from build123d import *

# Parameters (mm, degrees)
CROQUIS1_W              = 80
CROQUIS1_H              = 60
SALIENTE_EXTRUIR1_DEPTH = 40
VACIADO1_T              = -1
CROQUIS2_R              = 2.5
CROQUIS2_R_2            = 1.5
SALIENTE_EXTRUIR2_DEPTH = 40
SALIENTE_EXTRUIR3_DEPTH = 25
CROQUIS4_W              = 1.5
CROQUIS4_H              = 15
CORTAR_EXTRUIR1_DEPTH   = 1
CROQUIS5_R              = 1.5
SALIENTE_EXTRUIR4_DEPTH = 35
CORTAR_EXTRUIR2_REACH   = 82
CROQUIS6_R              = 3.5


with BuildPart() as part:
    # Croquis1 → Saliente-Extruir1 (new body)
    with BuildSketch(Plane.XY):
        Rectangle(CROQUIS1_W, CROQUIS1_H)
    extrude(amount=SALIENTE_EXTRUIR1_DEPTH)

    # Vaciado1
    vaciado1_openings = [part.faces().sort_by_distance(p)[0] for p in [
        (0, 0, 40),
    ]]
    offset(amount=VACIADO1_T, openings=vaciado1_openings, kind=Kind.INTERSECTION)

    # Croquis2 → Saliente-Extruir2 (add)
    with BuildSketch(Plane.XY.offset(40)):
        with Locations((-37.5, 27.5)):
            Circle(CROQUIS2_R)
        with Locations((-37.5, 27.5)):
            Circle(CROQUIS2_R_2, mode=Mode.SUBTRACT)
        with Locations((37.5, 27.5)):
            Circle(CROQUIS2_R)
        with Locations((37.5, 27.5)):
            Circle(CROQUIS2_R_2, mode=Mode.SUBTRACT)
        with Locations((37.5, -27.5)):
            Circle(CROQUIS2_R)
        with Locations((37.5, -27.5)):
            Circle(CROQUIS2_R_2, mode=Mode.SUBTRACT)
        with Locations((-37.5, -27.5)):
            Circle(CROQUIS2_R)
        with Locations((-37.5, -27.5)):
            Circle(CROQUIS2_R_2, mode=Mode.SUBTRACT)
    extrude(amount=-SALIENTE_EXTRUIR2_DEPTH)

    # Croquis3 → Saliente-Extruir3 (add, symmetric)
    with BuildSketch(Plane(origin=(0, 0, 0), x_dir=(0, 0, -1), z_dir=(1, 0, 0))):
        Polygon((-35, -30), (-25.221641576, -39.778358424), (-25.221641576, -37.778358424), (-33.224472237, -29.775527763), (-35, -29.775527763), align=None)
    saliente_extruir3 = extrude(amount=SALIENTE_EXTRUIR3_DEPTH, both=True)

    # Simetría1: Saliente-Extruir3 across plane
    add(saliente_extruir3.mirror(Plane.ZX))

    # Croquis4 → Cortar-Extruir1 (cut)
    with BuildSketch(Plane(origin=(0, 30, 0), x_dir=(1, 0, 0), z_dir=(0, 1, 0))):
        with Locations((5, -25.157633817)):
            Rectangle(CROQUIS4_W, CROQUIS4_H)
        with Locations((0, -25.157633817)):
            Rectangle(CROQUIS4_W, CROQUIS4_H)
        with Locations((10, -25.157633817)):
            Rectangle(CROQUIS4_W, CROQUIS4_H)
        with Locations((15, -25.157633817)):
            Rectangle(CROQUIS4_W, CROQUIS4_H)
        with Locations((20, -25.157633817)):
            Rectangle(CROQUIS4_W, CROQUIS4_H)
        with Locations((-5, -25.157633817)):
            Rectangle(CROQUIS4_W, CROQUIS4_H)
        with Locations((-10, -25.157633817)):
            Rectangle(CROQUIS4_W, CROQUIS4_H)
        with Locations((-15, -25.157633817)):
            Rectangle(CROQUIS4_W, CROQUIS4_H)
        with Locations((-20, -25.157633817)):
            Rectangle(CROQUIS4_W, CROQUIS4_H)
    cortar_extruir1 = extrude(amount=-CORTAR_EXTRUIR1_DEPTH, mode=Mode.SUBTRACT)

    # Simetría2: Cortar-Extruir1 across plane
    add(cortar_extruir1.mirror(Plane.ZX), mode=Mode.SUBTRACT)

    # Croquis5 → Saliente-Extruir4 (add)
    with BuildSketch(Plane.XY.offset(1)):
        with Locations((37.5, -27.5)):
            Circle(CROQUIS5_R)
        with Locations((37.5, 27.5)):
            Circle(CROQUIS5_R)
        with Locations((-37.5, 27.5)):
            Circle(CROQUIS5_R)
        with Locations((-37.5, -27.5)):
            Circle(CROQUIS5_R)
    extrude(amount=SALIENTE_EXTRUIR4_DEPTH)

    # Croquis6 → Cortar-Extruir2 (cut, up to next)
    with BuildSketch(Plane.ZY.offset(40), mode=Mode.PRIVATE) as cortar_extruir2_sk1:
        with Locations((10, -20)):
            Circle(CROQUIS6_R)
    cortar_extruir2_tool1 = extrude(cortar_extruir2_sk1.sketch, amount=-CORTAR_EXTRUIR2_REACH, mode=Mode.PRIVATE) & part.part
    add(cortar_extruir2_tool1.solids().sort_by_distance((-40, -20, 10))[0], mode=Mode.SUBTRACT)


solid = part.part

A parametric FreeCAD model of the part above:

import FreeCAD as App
import Part
import Sketcher
Q = App.Units.Quantity


def faces_at(feature, points):
    """Names of the faces that lie closest to the given points."""
    faces = feature.Shape.Faces
    near = lambda p: min(range(len(faces)), key=lambda i: faces[i].distToShape(Part.Vertex(*p))[0])
    return sorted({f"Face{near(p) + 1}" for p in points})

doc = App.newDocument("Part")
body = doc.addObject("PartDesign::Body", "Body")

# Sketch on XY plane
sketch1 = body.newObject("Sketcher::SketchObject", "Sketch")
sketch1.AttachmentSupport = (doc.getObject("XY_Plane"), [""])
sketch1.MapMode = "FlatFace"
sketch1.addGeometry([
    Part.LineSegment(App.Vector(-40, 30, 0), App.Vector(-40, -30, 0)),
    Part.LineSegment(App.Vector(-40, -30, 0), App.Vector(40, -30, 0)),
    Part.LineSegment(App.Vector(40, -30, 0), App.Vector(40, 30, 0)),
    Part.LineSegment(App.Vector(40, 30, 0), App.Vector(-40, 30, 0)),
], False)
sketch1.addConstraint([
    Sketcher.Constraint("Coincident", 0, 2, 1, 1),
    Sketcher.Constraint("Coincident", 1, 2, 2, 1),
    Sketcher.Constraint("Coincident", 2, 2, 3, 1),
    Sketcher.Constraint("Coincident", 3, 2, 0, 1),
    Sketcher.Constraint("Vertical", 0),
    Sketcher.Constraint("Horizontal", 1),
    Sketcher.Constraint("Vertical", 2),
    Sketcher.Constraint("Horizontal", 3),
    Sketcher.Constraint("Symmetric", 0, 2, 2, 2, -1, 1),
    Sketcher.Constraint("DistanceX", 1, 1, 1, 2, Q("80 mm")),
    Sketcher.Constraint("DistanceY", 0, 2, 0, 1, Q("60 mm")),
])
pad1 = body.newObject("PartDesign::Pad", "Pad")
pad1.Profile = sketch1
pad1.Length = 40
doc.recompute()

thickness = body.newObject("PartDesign::Thickness", "Thickness")
thickness.Base = (pad1, faces_at(pad1, [(0, 0, 40)]))
thickness.Value = 1
thickness.Reversed = True
thickness.Join = "Intersection"

# Sketch on XY plane
sketch2 = body.newObject("Sketcher::SketchObject", "Sketch001")
sketch2.AttachmentSupport = (doc.getObject("XY_Plane"), [""])
sketch2.MapMode = "FlatFace"
sketch2.AttachmentOffset = App.Placement(App.Vector(0, 0, 40), App.Rotation())
sketch2.addGeometry([
    Part.Circle(App.Vector(-37.5, 27.5, 0), App.Vector(0, 0, 1), 2.5),  # 0
    Part.Circle(App.Vector(-37.5, 27.5, 0), App.Vector(0, 0, 1), 1.5),  # 1
    Part.Circle(App.Vector(37.5, 27.5, 0), App.Vector(0, 0, 1), 2.5),  # 2
    Part.Circle(App.Vector(37.5, 27.5, 0), App.Vector(0, 0, 1), 1.5),  # 3
    Part.Circle(App.Vector(37.5, -27.5, 0), App.Vector(0, 0, 1), 2.5),  # 4
    Part.Circle(App.Vector(37.5, -27.5, 0), App.Vector(0, 0, 1), 1.5),  # 5
    Part.Circle(App.Vector(-37.5, -27.5, 0), App.Vector(0, 0, 1), 2.5),  # 6
    Part.Circle(App.Vector(-37.5, -27.5, 0), App.Vector(0, 0, 1), 1.5),  # 7
], False)
sketch2.addConstraint([
    Sketcher.Constraint("Coincident", 1, 3, 0, 3),
    Sketcher.Constraint("Coincident", 3, 3, 2, 3),
    Sketcher.Constraint("Coincident", 5, 3, 4, 3),
    Sketcher.Constraint("Coincident", 7, 3, 6, 3),
    Sketcher.Constraint("Equal", 0, 2),
    Sketcher.Constraint("Equal", 1, 3),
    Sketcher.Constraint("Equal", 2, 4),
    Sketcher.Constraint("Equal", 3, 5),
    Sketcher.Constraint("Equal", 4, 6),
    Sketcher.Constraint("Equal", 5, 7),
    Sketcher.Constraint("Symmetric", 0, 3, 4, 3, -1, 1),
    Sketcher.Constraint("Symmetric", 2, 3, 6, 3, -1, 1),
    Sketcher.Constraint("Symmetric", 0, 3, 2, 3, -2),
    Sketcher.Constraint("Diameter", 0, Q("5 mm")),
    Sketcher.Constraint("Diameter", 1, Q("3 mm")),
    Sketcher.Constraint("DistanceX", 0, 3, 2, 3, Q("75 mm")),
    Sketcher.Constraint("DistanceY", 4, 3, 2, 3, Q("55 mm")),
])
pad2 = body.newObject("PartDesign::Pad", "Pad001")
pad2.Profile = sketch2
pad2.Length = 40
pad2.Reversed = True

# Sketch on YZ plane
sketch3 = body.newObject("Sketcher::SketchObject", "Sketch002")
sketch3.AttachmentSupport = (doc.getObject("YZ_Plane"), [""])
sketch3.MapMode = "FlatFace"
sketch3.addGeometry([
    Part.LineSegment(App.Vector(-30, 35, 0), App.Vector(-39.778358, 25.221642, 0)),  # 0
    Part.LineSegment(App.Vector(-39.778358, 25.221642, 0), App.Vector(-37.778358, 25.221642, 0)),  # 1
    Part.LineSegment(App.Vector(-37.778358, 25.221642, 0), App.Vector(-29.775528, 33.224472, 0)),  # 2
    Part.LineSegment(App.Vector(-29.775528, 33.224472, 0), App.Vector(-29.775528, 35, 0)),  # 3
    Part.LineSegment(App.Vector(-29.775528, 35, 0), App.Vector(-30, 35, 0)),  # 4
], False)
sketch3.addConstraint([
    Sketcher.Constraint("Coincident", 0, 2, 1, 1),
    Sketcher.Constraint("Coincident", 1, 2, 2, 1),
    Sketcher.Constraint("Coincident", 2, 2, 3, 1),
    Sketcher.Constraint("Coincident", 3, 2, 4, 1),
    Sketcher.Constraint("Coincident", 4, 2, 0, 1),
    Sketcher.Constraint("Horizontal", 1),
    Sketcher.Constraint("Vertical", 3),
    Sketcher.Constraint("Horizontal", 4),
    Sketcher.Constraint("Parallel", 0, 2),
    Sketcher.Constraint("DistanceX", 1, 1, 1, 2, Q("2 mm")),
    Sketcher.Constraint("Angle", 0, Q("-135 deg")),
    Sketcher.Constraint("DistanceY", -1, 1, 3, 2, Q("35 mm")),
    Sketcher.Constraint("DistanceX", 4, 2, -1, 1, Q("30 mm")),
    Sketcher.Constraint("Distance", 2, Q("11.317712 mm")),
    Sketcher.Constraint("DistanceX", 4, 2, 4, 1, Q("0.224472 mm")),
])
pad3 = body.newObject("PartDesign::Pad", "Pad002")
pad3.Profile = sketch3
pad3.Length = 50
pad3.Midplane = True
doc.recompute()

mirrored = body.newObject("PartDesign::Mirrored", "Mirrored")
mirrored.Originals = [pad3]
mirrored.MirrorPlane = (doc.getObject("XZ_Plane"), [""])
body.Tip = mirrored

# Sketch on XZ plane
sketch4 = body.newObject("Sketcher::SketchObject", "Sketch003")
sketch4.AttachmentSupport = (doc.getObject("XZ_Plane"), [""])
sketch4.MapMode = "FlatFace"
sketch4.AttachmentOffset = App.Placement(App.Vector(0, 0, -30), App.Rotation())
sketch4.addGeometry([
    Part.LineSegment(App.Vector(4.25, 17.657634, 0), App.Vector(4.25, 32.657634, 0)),  # 0
    Part.LineSegment(App.Vector(4.25, 32.657634, 0), App.Vector(5.75, 32.657634, 0)),  # 1
    Part.LineSegment(App.Vector(5.75, 32.657634, 0), App.Vector(5.75, 17.657634, 0)),  # 2
    Part.LineSegment(App.Vector(5.75, 17.657634, 0), App.Vector(4.25, 17.657634, 0)),  # 3
    Part.LineSegment(App.Vector(-0.75, 17.657634, 0), App.Vector(-0.75, 32.657634, 0)),  # 4
    Part.LineSegment(App.Vector(-0.75, 32.657634, 0), App.Vector(0.75, 32.657634, 0)),  # 5
    Part.LineSegment(App.Vector(0.75, 32.657634, 0), App.Vector(0.75, 17.657634, 0)),  # 6
    Part.LineSegment(App.Vector(0.75, 17.657634, 0), App.Vector(-0.75, 17.657634, 0)),  # 7
    Part.LineSegment(App.Vector(9.25, 17.657634, 0), App.Vector(9.25, 32.657634, 0)),  # 8
    Part.LineSegment(App.Vector(9.25, 32.657634, 0), App.Vector(10.75, 32.657634, 0)),  # 9
    Part.LineSegment(App.Vector(10.75, 32.657634, 0), App.Vector(10.75, 17.657634, 0)),  # 10
    Part.LineSegment(App.Vector(10.75, 17.657634, 0), App.Vector(9.25, 17.657634, 0)),  # 11
    Part.LineSegment(App.Vector(14.25, 17.657634, 0), App.Vector(14.25, 32.657634, 0)),  # 12
    Part.LineSegment(App.Vector(14.25, 32.657634, 0), App.Vector(15.75, 32.657634, 0)),  # 13
    Part.LineSegment(App.Vector(15.75, 32.657634, 0), App.Vector(15.75, 17.657634, 0)),  # 14
    Part.LineSegment(App.Vector(15.75, 17.657634, 0), App.Vector(14.25, 17.657634, 0)),  # 15
    Part.LineSegment(App.Vector(19.25, 17.657634, 0), App.Vector(19.25, 32.657634, 0)),  # 16
    Part.LineSegment(App.Vector(19.25, 32.657634, 0), App.Vector(20.75, 32.657634, 0)),  # 17
    Part.LineSegment(App.Vector(20.75, 32.657634, 0), App.Vector(20.75, 17.657634, 0)),  # 18
    Part.LineSegment(App.Vector(20.75, 17.657634, 0), App.Vector(19.25, 17.657634, 0)),  # 19
    Part.LineSegment(App.Vector(-5.75, 17.657634, 0), App.Vector(-5.75, 32.657634, 0)),  # 20
    Part.LineSegment(App.Vector(-5.75, 32.657634, 0), App.Vector(-4.25, 32.657634, 0)),  # 21
    Part.LineSegment(App.Vector(-4.25, 32.657634, 0), App.Vector(-4.25, 17.657634, 0)),  # 22
    Part.LineSegment(App.Vector(-4.25, 17.657634, 0), App.Vector(-5.75, 17.657634, 0)),  # 23
    Part.LineSegment(App.Vector(-10.75, 17.657634, 0), App.Vector(-10.75, 32.657634, 0)),  # 24
    Part.LineSegment(App.Vector(-10.75, 32.657634, 0), App.Vector(-9.25, 32.657634, 0)),  # 25
    Part.LineSegment(App.Vector(-9.25, 32.657634, 0), App.Vector(-9.25, 17.657634, 0)),  # 26
    Part.LineSegment(App.Vector(-9.25, 17.657634, 0), App.Vector(-10.75, 17.657634, 0)),  # 27
    Part.LineSegment(App.Vector(-15.75, 17.657634, 0), App.Vector(-15.75, 32.657634, 0)),  # 28
    Part.LineSegment(App.Vector(-15.75, 32.657634, 0), App.Vector(-14.25, 32.657634, 0)),  # 29
    Part.LineSegment(App.Vector(-14.25, 32.657634, 0), App.Vector(-14.25, 17.657634, 0)),  # 30
    Part.LineSegment(App.Vector(-14.25, 17.657634, 0), App.Vector(-15.75, 17.657634, 0)),  # 31
    Part.LineSegment(App.Vector(-20.75, 17.657634, 0), App.Vector(-20.75, 32.657634, 0)),  # 32
    Part.LineSegment(App.Vector(-20.75, 32.657634, 0), App.Vector(-19.25, 32.657634, 0)),  # 33
    Part.LineSegment(App.Vector(-19.25, 32.657634, 0), App.Vector(-19.25, 17.657634, 0)),  # 34
    Part.LineSegment(App.Vector(-19.25, 17.657634, 0), App.Vector(-20.75, 17.657634, 0)),  # 35
], False)
sketch4.addConstraint([
    Sketcher.Constraint("Coincident", 0, 2, 1, 1),
    Sketcher.Constraint("Coincident", 1, 2, 2, 1),
    Sketcher.Constraint("Coincident", 2, 2, 3, 1),
    Sketcher.Constraint("Coincident", 3, 2, 0, 1),
    Sketcher.Constraint("Coincident", 4, 2, 5, 1),
    Sketcher.Constraint("Coincident", 5, 2, 6, 1),
    Sketcher.Constraint("Coincident", 6, 2, 7, 1),
    Sketcher.Constraint("Coincident", 7, 2, 4, 1),
    Sketcher.Constraint("Coincident", 8, 2, 9, 1),
    Sketcher.Constraint("Coincident", 9, 2, 10, 1),
    Sketcher.Constraint("Coincident", 10, 2, 11, 1),
    Sketcher.Constraint("Coincident", 11, 2, 8, 1),
    Sketcher.Constraint("Coincident", 12, 2, 13, 1),
    Sketcher.Constraint("Coincident", 13, 2, 14, 1),
    Sketcher.Constraint("Coincident", 14, 2, 15, 1),
    Sketcher.Constraint("Coincident", 15, 2, 12, 1),
    Sketcher.Constraint("Coincident", 16, 2, 17, 1),
    Sketcher.Constraint("Coincident", 17, 2, 18, 1),
    Sketcher.Constraint("Coincident", 18, 2, 19, 1),
    Sketcher.Constraint("Coincident", 19, 2, 16, 1),
    Sketcher.Constraint("Coincident", 20, 2, 21, 1),
    Sketcher.Constraint("Coincident", 21, 2, 22, 1),
    Sketcher.Constraint("Coincident", 22, 2, 23, 1),
    Sketcher.Constraint("Coincident", 23, 2, 20, 1),
    Sketcher.Constraint("Coincident", 24, 2, 25, 1),
    Sketcher.Constraint("Coincident", 25, 2, 26, 1),
    Sketcher.Constraint("Coincident", 26, 2, 27, 1),
    Sketcher.Constraint("Coincident", 27, 2, 24, 1),
    Sketcher.Constraint("Coincident", 28, 2, 29, 1),
    Sketcher.Constraint("Coincident", 29, 2, 30, 1),
    Sketcher.Constraint("Coincident", 30, 2, 31, 1),
    Sketcher.Constraint("Coincident", 31, 2, 28, 1),
    Sketcher.Constraint("Coincident", 32, 2, 33, 1),
    Sketcher.Constraint("Coincident", 33, 2, 34, 1),
    Sketcher.Constraint("Coincident", 34, 2, 35, 1),
    Sketcher.Constraint("Coincident", 35, 2, 32, 1),
    Sketcher.Constraint("Vertical", 0),
    Sketcher.Constraint("Horizontal", 1),
    Sketcher.Constraint("Vertical", 2),
    Sketcher.Constraint("Horizontal", 3),
    Sketcher.Constraint("Vertical", 4),
    Sketcher.Constraint("Horizontal", 5),
    Sketcher.Constraint("Vertical", 6),
    Sketcher.Constraint("Horizontal", 7),
    Sketcher.Constraint("Vertical", 8),
    Sketcher.Constraint("Horizontal", 9),
    Sketcher.Constraint("Vertical", 10),
    Sketcher.Constraint("Horizontal", 11),
    Sketcher.Constraint("Vertical", 12),
    Sketcher.Constraint("Horizontal", 13),
    Sketcher.Constraint("Vertical", 14),
    Sketcher.Constraint("Horizontal", 15),
    Sketcher.Constraint("Vertical", 16),
    Sketcher.Constraint("Horizontal", 17),
    Sketcher.Constraint("Vertical", 18),
    Sketcher.Constraint("Horizontal", 19),
    Sketcher.Constraint("Vertical", 20),
    Sketcher.Constraint("Horizontal", 21),
    Sketcher.Constraint("Vertical", 22),
    Sketcher.Constraint("Horizontal", 23),
    Sketcher.Constraint("Vertical", 24),
    Sketcher.Constraint("Horizontal", 25),
    Sketcher.Constraint("Vertical", 26),
    Sketcher.Constraint("Horizontal", 27),
    Sketcher.Constraint("Vertical", 28),
    Sketcher.Constraint("Horizontal", 29),
    Sketcher.Constraint("Vertical", 30),
    Sketcher.Constraint("Horizontal", 31),
    Sketcher.Constraint("Vertical", 32),
    Sketcher.Constraint("Horizontal", 33),
    Sketcher.Constraint("Vertical", 34),
    Sketcher.Constraint("Horizontal", 35),
    Sketcher.Constraint("Symmetric", 1, 2, 20, 2, -2),
    Sketcher.Constraint("Symmetric", 3, 2, 22, 2, -2),
    Sketcher.Constraint("Symmetric", 9, 2, 24, 2, -2),
    Sketcher.Constraint("Symmetric", 11, 2, 26, 2, -2),
    Sketcher.Constraint("Symmetric", 13, 2, 28, 2, -2),
    Sketcher.Constraint("Symmetric", 15, 2, 30, 2, -2),
    Sketcher.Constraint("Symmetric", 17, 2, 32, 2, -2),
    Sketcher.Constraint("Symmetric", 19, 2, 34, 2, -2),
    Sketcher.Constraint("Horizontal", 1, 2, 4, 2),
    Sketcher.Constraint("Horizontal", 3, 2, 6, 2),
    Sketcher.Constraint("Horizontal", 5, 2, 8, 2),
    Sketcher.Constraint("Horizontal", 7, 2, 10, 2),
    Sketcher.Constraint("Horizontal", 9, 2, 12, 2),
    Sketcher.Constraint("Horizontal", 11, 2, 14, 2),
    Sketcher.Constraint("Horizontal", 13, 2, 16, 2),
    Sketcher.Constraint("Horizontal", 15, 2, 18, 2),
    Sketcher.Constraint("Equal", 3, 5),
    Sketcher.Constraint("Equal", 7, 9),
    Sketcher.Constraint("Equal", 11, 13),
    Sketcher.Constraint("Equal", 15, 17),
    Sketcher.Constraint("DistanceY", 0, 1, 0, 2, Q("15 mm")),
    Sketcher.Constraint("DistanceX", 1, 1, 1, 2, Q("1.5 mm")),
    Sketcher.Constraint("DistanceX", 4, 2, 0, 2, Q("5 mm")),
    Sketcher.Constraint("DistanceX", 0, 2, 8, 2, Q("5 mm")),
    Sketcher.Constraint("DistanceX", 8, 2, 12, 2, Q("5 mm")),
    Sketcher.Constraint("DistanceX", 12, 2, 16, 2, Q("5 mm")),
    Sketcher.Constraint("DistanceX", 20, 2, 4, 2, Q("5 mm")),
    Sketcher.Constraint("DistanceY", -1, 1, 0, 2, Q("32.657634 mm")),
])
pocket1 = body.newObject("PartDesign::Pocket", "Pocket")
pocket1.Profile = sketch4
pocket1.Length = 1
pocket1.Reversed = True
doc.recompute()

mirrored2 = body.newObject("PartDesign::Mirrored", "Mirrored001")
mirrored2.Originals = [pocket1]
mirrored2.MirrorPlane = (doc.getObject("XZ_Plane"), [""])
body.Tip = mirrored2

# Sketch on XY plane
sketch5 = body.newObject("Sketcher::SketchObject", "Sketch004")
sketch5.AttachmentSupport = (doc.getObject("XY_Plane"), [""])
sketch5.MapMode = "FlatFace"
sketch5.AttachmentOffset = App.Placement(App.Vector(0, 0, 1), App.Rotation())
sketch5.addGeometry([
    Part.Circle(App.Vector(37.5, -27.5, 0), App.Vector(0, 0, 1), 1.5),
    Part.Circle(App.Vector(37.5, 27.5, 0), App.Vector(0, 0, 1), 1.5),
    Part.Circle(App.Vector(-37.5, 27.5, 0), App.Vector(0, 0, 1), 1.5),
    Part.Circle(App.Vector(-37.5, -27.5, 0), App.Vector(0, 0, 1), 1.5),
], False)
sketch5.addConstraint([
    Sketcher.Constraint("Equal", 0, 1),
    Sketcher.Constraint("Equal", 1, 2),
    Sketcher.Constraint("Equal", 2, 3),
    Sketcher.Constraint("Symmetric", 0, 3, 2, 3, -1, 1),
    Sketcher.Constraint("Symmetric", 1, 3, 3, 3, -1, 1),
    Sketcher.Constraint("Symmetric", 1, 3, 2, 3, -2),
    Sketcher.Constraint("Diameter", 0, Q("3 mm")),
    Sketcher.Constraint("DistanceY", 0, 3, 1, 3, Q("55 mm")),
    Sketcher.Constraint("DistanceX", 2, 3, 1, 3, Q("75 mm")),
])
pad4 = body.newObject("PartDesign::Pad", "Pad003")
pad4.Profile = sketch5
pad4.Length = 35

# Sketch on YZ plane
sketch6 = body.newObject("Sketcher::SketchObject", "Sketch005")
sketch6.AttachmentSupport = (doc.getObject("YZ_Plane"), [""])
sketch6.MapMode = "FlatFace"
sketch6.AttachmentOffset = App.Placement(App.Vector(0, 0, -40), App.Rotation())
sketch6.addGeometry(Part.Circle(App.Vector(-20, 10, 0), App.Vector(0, 0, 1), 3.5), False)
sketch6.addConstraint([
    Sketcher.Constraint("Diameter", 0, Q("7 mm")),
    Sketcher.Constraint("DistanceX", 0, 3, -1, 1, Q("20 mm")),
    Sketcher.Constraint("DistanceY", -1, 1, 0, 3, Q("10 mm")),
])
pocket2 = body.newObject("PartDesign::Pocket", "Pocket001")
pocket2.Profile = sketch6
pocket2.Type = "UpToFirst"
pocket2.Reversed = True

doc.recompute()
